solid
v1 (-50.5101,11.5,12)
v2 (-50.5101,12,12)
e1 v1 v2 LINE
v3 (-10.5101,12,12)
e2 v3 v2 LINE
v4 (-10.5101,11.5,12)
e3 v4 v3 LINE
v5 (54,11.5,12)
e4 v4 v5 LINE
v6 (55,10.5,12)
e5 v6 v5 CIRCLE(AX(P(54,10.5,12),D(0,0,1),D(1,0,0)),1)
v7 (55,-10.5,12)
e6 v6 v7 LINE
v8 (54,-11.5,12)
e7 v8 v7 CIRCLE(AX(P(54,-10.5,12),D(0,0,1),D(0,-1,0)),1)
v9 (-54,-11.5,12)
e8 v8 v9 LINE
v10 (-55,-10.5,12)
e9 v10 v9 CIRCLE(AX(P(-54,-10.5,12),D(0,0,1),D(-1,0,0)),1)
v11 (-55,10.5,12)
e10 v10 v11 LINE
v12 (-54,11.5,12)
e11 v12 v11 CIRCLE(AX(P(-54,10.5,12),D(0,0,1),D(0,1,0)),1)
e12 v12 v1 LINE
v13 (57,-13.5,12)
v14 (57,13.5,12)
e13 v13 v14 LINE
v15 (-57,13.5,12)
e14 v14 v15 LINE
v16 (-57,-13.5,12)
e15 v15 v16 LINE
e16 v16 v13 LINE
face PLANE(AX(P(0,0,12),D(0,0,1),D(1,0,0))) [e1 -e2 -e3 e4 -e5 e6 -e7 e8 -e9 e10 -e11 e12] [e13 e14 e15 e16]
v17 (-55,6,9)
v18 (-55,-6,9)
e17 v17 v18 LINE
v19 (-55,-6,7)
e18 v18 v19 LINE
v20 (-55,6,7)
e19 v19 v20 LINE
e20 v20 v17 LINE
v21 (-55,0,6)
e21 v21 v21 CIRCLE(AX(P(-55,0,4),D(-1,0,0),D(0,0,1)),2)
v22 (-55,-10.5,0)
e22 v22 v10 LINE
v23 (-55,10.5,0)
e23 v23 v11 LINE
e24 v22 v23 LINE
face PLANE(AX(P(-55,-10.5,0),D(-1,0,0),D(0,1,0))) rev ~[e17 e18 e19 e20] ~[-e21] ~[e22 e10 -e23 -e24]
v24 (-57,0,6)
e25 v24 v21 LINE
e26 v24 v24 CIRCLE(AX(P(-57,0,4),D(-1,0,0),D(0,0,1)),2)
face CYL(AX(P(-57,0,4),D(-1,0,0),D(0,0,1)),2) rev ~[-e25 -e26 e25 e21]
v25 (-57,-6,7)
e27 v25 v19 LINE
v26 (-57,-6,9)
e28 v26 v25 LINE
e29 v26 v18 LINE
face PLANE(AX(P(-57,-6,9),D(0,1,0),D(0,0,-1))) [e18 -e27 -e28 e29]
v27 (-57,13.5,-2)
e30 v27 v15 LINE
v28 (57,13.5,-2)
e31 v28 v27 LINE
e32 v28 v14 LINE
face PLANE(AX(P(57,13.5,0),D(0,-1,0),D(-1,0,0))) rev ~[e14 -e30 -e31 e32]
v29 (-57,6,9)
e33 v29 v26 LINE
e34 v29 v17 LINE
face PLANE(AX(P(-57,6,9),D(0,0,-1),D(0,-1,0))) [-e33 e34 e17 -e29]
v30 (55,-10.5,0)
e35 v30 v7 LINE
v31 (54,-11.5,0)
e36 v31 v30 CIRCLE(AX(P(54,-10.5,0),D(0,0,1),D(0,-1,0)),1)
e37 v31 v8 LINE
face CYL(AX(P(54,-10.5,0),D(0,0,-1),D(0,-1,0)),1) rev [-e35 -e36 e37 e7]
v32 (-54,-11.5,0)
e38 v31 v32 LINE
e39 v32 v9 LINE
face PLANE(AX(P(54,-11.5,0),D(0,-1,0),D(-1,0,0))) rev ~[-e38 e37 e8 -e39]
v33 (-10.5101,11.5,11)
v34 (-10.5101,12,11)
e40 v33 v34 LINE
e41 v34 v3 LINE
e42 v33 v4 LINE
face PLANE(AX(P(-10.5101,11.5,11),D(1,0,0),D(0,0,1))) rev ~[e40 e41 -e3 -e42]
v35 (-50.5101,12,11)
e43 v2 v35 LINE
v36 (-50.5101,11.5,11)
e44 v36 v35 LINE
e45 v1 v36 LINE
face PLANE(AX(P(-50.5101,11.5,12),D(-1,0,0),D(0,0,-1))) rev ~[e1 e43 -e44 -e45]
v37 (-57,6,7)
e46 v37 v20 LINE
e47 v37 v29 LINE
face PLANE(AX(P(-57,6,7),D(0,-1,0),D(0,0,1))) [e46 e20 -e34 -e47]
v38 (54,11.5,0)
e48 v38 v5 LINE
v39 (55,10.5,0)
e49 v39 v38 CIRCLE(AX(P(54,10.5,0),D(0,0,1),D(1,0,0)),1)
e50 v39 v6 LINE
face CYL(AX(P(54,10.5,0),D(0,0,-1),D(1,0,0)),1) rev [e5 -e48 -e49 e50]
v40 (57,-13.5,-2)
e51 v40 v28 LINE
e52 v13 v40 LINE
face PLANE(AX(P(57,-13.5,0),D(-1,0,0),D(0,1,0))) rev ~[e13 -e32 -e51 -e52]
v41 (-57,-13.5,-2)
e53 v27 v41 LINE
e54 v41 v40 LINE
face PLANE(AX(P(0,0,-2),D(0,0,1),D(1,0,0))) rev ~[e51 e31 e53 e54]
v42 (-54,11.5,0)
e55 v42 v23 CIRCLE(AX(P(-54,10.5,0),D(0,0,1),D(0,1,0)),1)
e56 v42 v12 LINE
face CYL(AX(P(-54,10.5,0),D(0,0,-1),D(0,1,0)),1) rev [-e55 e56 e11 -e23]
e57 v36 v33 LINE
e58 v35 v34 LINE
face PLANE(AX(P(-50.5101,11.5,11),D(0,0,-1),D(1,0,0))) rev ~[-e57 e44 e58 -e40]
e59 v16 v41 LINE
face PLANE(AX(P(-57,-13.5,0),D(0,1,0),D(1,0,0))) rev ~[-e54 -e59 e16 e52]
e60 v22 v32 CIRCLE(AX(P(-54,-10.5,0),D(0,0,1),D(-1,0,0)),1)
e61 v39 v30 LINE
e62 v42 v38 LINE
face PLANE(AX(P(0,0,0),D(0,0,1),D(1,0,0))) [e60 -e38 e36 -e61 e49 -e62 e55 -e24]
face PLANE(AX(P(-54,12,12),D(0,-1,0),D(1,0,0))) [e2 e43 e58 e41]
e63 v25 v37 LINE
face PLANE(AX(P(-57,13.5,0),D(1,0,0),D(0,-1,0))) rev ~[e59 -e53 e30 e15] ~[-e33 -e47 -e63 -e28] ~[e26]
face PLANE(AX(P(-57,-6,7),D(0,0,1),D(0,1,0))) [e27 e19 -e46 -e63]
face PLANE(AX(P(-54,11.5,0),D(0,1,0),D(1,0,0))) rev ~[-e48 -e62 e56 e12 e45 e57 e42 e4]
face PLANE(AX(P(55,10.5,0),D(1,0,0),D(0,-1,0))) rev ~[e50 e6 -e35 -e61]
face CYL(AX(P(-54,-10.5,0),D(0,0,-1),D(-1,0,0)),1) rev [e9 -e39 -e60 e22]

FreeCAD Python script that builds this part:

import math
import FreeCAD as App
import Part
import Sketcher

V = App.Vector

doc = App.newDocument("Part")
body = doc.addObject("PartDesign::Body", "Body")

# Sketch on XY plane
sketch1 = body.newObject("Sketcher::SketchObject", "Sketch")
sketch1.AttachmentSupport = (doc.getObject("XY_Plane"), [""])
sketch1.MapMode = "FlatFace"
sketch1.addGeometry(Part.LineSegment(V(57, -13.5, 0), V(57, 13.5, 0)), False)
sketch1.addGeometry(Part.LineSegment(V(57, 13.5, 0), V(-57, 13.5, 0)), False)
sketch1.addGeometry(Part.LineSegment(V(-57, 13.5, 0), V(-57, -13.5, 0)), False)
sketch1.addGeometry(Part.LineSegment(V(-57, -13.5, 0), V(57, -13.5, 0)), False)
sketch1.addGeometry(Part.ArcOfCircle(Part.Circle(V(-54, 10.5, 0), V(0, 0, 1), 1), math.radians(90), math.radians(180)), False)
sketch1.addGeometry(Part.LineSegment(V(-54, 11.5, 0), V(54, 11.5, 0)), False)
sketch1.addGeometry(Part.ArcOfCircle(Part.Circle(V(54, 10.5, 0), V(0, 0, 1), 1), math.radians(0), math.radians(90)), False)
sketch1.addGeometry(Part.LineSegment(V(55, 10.5, 0), V(55, -10.5, 0)), False)
sketch1.addGeometry(Part.ArcOfCircle(Part.Circle(V(54, -10.5, 0), V(0, 0, 1), 1), math.radians(-90), math.radians(0)), False)
sketch1.addGeometry(Part.LineSegment(V(54, -11.5, 0), V(-54, -11.5, 0)), False)
sketch1.addGeometry(Part.ArcOfCircle(Part.Circle(V(-54, -10.5, 0), V(0, 0, 1), 1), math.radians(180), math.radians(270)), False)
sketch1.addGeometry(Part.LineSegment(V(-55, -10.5, 0), V(-55, 10.5, 0)), False)
sketch1.addConstraint(Sketcher.Constraint("Coincident", 0, 2, 1, 1))
sketch1.addConstraint(Sketcher.Constraint("Coincident", 1, 2, 2, 1))
sketch1.addConstraint(Sketcher.Constraint("Coincident", 2, 2, 3, 1))
sketch1.addConstraint(Sketcher.Constraint("Coincident", 3, 2, 0, 1))
sketch1.addConstraint(Sketcher.Constraint("Tangent", 4, 1, 5, 1))
sketch1.addConstraint(Sketcher.Constraint("Tangent", 5, 2, 6, 2))
sketch1.addConstraint(Sketcher.Constraint("Tangent", 6, 1, 7, 1))
sketch1.addConstraint(Sketcher.Constraint("Tangent", 7, 2, 8, 2))
sketch1.addConstraint(Sketcher.Constraint("Tangent", 8, 1, 9, 1))
sketch1.addConstraint(Sketcher.Constraint("Tangent", 9, 2, 10, 2))
sketch1.addConstraint(Sketcher.Constraint("Tangent", 10, 1, 11, 1))
sketch1.addConstraint(Sketcher.Constraint("Tangent", 11, 2, 4, 2))
sketch1.addConstraint(Sketcher.Constraint("Vertical", 0))
sketch1.addConstraint(Sketcher.Constraint("Horizontal", 1))
sketch1.addConstraint(Sketcher.Constraint("Vertical", 2))
sketch1.addConstraint(Sketcher.Constraint("Horizontal", 3))
sketch1.addConstraint(Sketcher.Constraint("Horizontal", 5))
sketch1.addConstraint(Sketcher.Constraint("Vertical", 7))
sketch1.addConstraint(Sketcher.Constraint("Horizontal", 9))
sketch1.addConstraint(Sketcher.Constraint("Vertical", 11))
sketch1.addConstraint(Sketcher.Constraint("Equal", 4, 6))
sketch1.addConstraint(Sketcher.Constraint("Equal", 6, 8))
sketch1.addConstraint(Sketcher.Constraint("Equal", 8, 10))
sketch1.addConstraint(Sketcher.Constraint("Symmetric", 4, 3, 8, 3, -1, 1))
sketch1.addConstraint(Sketcher.Constraint("Symmetric", 0, 2, 2, 2, -1, 1))
sketch1.addConstraint(Sketcher.Constraint("Radius", 4, 1.0))
sketch1.addConstraint(Sketcher.Constraint("DistanceY", 4, 1, 1, 2, 2.0))
sketch1.addConstraint(Sketcher.Constraint("DistanceX", 6, 1, 0, 2, 2.0))
sketch1.addConstraint(Sketcher.Constraint("DistanceY", 9, 2, 4, 1, 23.0))
sketch1.addConstraint(Sketcher.Constraint("DistanceX", 1, 2, 1, 1, 114.0))
pad1 = body.newObject("PartDesign::Pad", "Pad")
pad1.Profile = sketch1
pad1.Length = 12

# Sketch on YZ plane
sketch2 = body.newObject("Sketcher::SketchObject", "Sketch001")
sketch2.AttachmentSupport = (doc.getObject("YZ_Plane"), [""])
sketch2.MapMode = "FlatFace"
sketch2.AttachmentOffset = App.Placement(V(0, 0, -57), App.Rotation())
sketch2.addGeometry(Part.LineSegment(V(6, 9, 0), V(6, 7, 0)), False)
sketch2.addGeometry(Part.LineSegment(V(6, 7, 0), V(-6, 7, 0)), False)
sketch2.addGeometry(Part.LineSegment(V(-6, 7, 0), V(-6, 9, 0)), False)
sketch2.addGeometry(Part.LineSegment(V(-6, 9, 0), V(6, 9, 0)), False)
sketch2.addGeometry(Part.Circle(V(0, 4, 0), V(0, 0, 1), 2), False)
sketch2.addConstraint(Sketcher.Constraint("Coincident", 0, 2, 1, 1))
sketch2.addConstraint(Sketcher.Constraint("Coincident", 1, 2, 2, 1))
sketch2.addConstraint(Sketcher.Constraint("Coincident", 2, 2, 3, 1))
sketch2.addConstraint(Sketcher.Constraint("Coincident", 3, 2, 0, 1))
sketch2.addConstraint(Sketcher.Constraint("Vertical", 0))
sketch2.addConstraint(Sketcher.Constraint("Horizontal", 1))
sketch2.addConstraint(Sketcher.Constraint("Vertical", 2))
sketch2.addConstraint(Sketcher.Constraint("Horizontal", 3))
sketch2.addConstraint(Sketcher.Constraint("PointOnObject", 4, 3, -2))
sketch2.addConstraint(Sketcher.Constraint("Diameter", 4, 4.0))
sketch2.addConstraint(Sketcher.Constraint("DistanceX", 1, 2, 1, 1, 12.0))
sketch2.addConstraint(Sketcher.Constraint("DistanceY", 0, 2, 0, 1, 2.0))
sketch2.addConstraint(Sketcher.Constraint("DistanceY", -1, 1, 4, 3, 4.0))
sketch2.addConstraint(Sketcher.Constraint("DistanceY", 4, 3, 0, 2, 3.0))
sketch2.addConstraint(Sketcher.Constraint("DistanceX", -1, 1, 0, 2, 6.0))
pocket1 = body.newObject("PartDesign::Pocket", "Pocket")
pocket1.Profile = sketch2
pocket1.Length = 10
pocket1.Reversed = True

# Sketch on XY plane
sketch3 = body.newObject("Sketcher::SketchObject", "Sketch002")
sketch3.AttachmentSupport = (doc.getObject("XY_Plane"), [""])
sketch3.MapMode = "FlatFace"
sketch3.addGeometry(Part.LineSegment(V(57, -13.5, 0), V(57, 13.5, 0)), False)
sketch3.addGeometry(Part.LineSegment(V(57, 13.5, 0), V(-57, 13.5, 0)), False)
sketch3.addGeometry(Part.LineSegment(V(-57, 13.5, 0), V(-57, -13.5, 0)), False)
sketch3.addGeometry(Part.LineSegment(V(-57, -13.5, 0), V(57, -13.5, 0)), False)
sketch3.addConstraint(Sketcher.Constraint("Coincident", 0, 2, 1, 1))
sketch3.addConstraint(Sketcher.Constraint("Coincident", 1, 2, 2, 1))
sketch3.addConstraint(Sketcher.Constraint("Coincident", 2, 2, 3, 1))
sketch3.addConstraint(Sketcher.Constraint("Coincident", 3, 2, 0, 1))
sketch3.addConstraint(Sketcher.Constraint("Vertical", 0))
sketch3.addConstraint(Sketcher.Constraint("Horizontal", 1))
sketch3.addConstraint(Sketcher.Constraint("Vertical", 2))
sketch3.addConstraint(Sketcher.Constraint("Horizontal", 3))
sketch3.addConstraint(Sketcher.Constraint("Symmetric", 0, 2, 2, 2, -1, 1))
sketch3.addConstraint(Sketcher.Constraint("DistanceX", 1, 2, 1, 1, 114.0))
sketch3.addConstraint(Sketcher.Constraint("DistanceY", 0, 1, 0, 2, 27.0))
pad2 = body.newObject("PartDesign::Pad", "Pad001")
pad2.Profile = sketch3
pad2.Length = 2
pad2.Reversed = True

# Sketch on XZ plane
sketch4 = body.newObject("Sketcher::SketchObject", "Sketch003")
sketch4.AttachmentSupport = (doc.getObject("XZ_Plane"), [""])
sketch4.MapMode = "FlatFace"
sketch4.AttachmentOffset = App.Placement(V(0, 0, -11.5), App.Rotation())
sketch4.addGeometry(Part.LineSegment(V(-50.5101, 12, 0), V(-50.5101, 11, 0)), False)
sketch4.addGeometry(Part.LineSegment(V(-50.5101, 11, 0), V(-10.5101, 11, 0)), False)
sketch4.addGeometry(Part.LineSegment(V(-10.5101, 11, 0), V(-10.5101, 12, 0)), False)
sketch4.addGeometry(Part.LineSegment(V(-10.5101, 12, 0), V(-50.5101, 12, 0)), False)
sketch4.addConstraint(Sketcher.Constraint("Coincident", 0, 2, 1, 1))
sketch4.addConstraint(Sketcher.Constraint("Coincident", 1, 2, 2, 1))
sketch4.addConstraint(Sketcher.Constraint("Coincident", 2, 2, 3, 1))
sketch4.addConstraint(Sketcher.Constraint("Coincident", 3, 2, 0, 1))
sketch4.addConstraint(Sketcher.Constraint("Vertical", 0))
sketch4.addConstraint(Sketcher.Constraint("Horizontal", 1))
sketch4.addConstraint(Sketcher.Constraint("Vertical", 2))
sketch4.addConstraint(Sketcher.Constraint("Horizontal", 3))
sketch4.addConstraint(Sketcher.Constraint("DistanceX", 1, 1, 1, 2, 40.0))
sketch4.addConstraint(Sketcher.Constraint("DistanceY", 0, 2, 0, 1, 1.0))
sketch4.addConstraint(Sketcher.Constraint("DistanceY", -1, 1, 0, 2, 11.0))
sketch4.addConstraint(Sketcher.Constraint("DistanceX", 0, 2, -1, 1, 50.51))
pocket2 = body.newObject("PartDesign::Pocket", "Pocket001")
pocket2.Profile = sketch4
pocket2.Length = 0.5

doc.recompute()
